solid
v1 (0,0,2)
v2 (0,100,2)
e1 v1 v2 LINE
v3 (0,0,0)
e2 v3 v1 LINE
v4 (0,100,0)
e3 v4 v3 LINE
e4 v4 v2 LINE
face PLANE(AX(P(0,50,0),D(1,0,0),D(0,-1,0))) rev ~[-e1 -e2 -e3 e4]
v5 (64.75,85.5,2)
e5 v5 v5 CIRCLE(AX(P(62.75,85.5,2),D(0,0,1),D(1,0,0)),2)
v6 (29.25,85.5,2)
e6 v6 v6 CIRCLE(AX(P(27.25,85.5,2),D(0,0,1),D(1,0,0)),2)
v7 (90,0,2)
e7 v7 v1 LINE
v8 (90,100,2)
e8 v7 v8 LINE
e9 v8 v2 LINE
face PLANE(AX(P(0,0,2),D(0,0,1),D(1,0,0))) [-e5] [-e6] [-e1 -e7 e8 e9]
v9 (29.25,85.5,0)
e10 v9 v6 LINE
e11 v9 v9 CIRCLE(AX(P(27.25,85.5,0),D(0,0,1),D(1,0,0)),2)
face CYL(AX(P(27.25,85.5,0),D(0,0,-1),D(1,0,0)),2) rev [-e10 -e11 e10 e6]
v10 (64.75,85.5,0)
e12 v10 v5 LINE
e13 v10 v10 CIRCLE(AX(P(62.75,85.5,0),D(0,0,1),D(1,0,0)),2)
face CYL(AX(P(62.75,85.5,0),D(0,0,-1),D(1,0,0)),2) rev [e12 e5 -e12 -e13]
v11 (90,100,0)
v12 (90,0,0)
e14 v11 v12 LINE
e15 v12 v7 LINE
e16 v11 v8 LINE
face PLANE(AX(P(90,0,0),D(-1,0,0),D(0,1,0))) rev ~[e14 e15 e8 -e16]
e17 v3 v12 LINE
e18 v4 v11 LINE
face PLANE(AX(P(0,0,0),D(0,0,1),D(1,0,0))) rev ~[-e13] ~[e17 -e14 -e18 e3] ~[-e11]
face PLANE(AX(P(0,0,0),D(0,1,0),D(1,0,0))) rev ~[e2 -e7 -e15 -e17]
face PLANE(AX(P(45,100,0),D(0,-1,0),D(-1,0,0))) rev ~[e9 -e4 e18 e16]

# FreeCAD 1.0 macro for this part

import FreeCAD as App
import Part
import Sketcher
from FreeCAD import Vector
Q = App.Units.Quantity

doc = App.newDocument("Part")
body = doc.addObject("PartDesign::Body", "Body")

# Sketch on XY plane
sketch1 = body.newObject("Sketcher::SketchObject", "Sketch")
sketch1.AttachmentSupport = (doc.getObject("XY_Plane"), [""])
sketch1.MapMode = "FlatFace"
sketch1.addGeometry([
    Part.LineSegment(Vector(0, 0, 0), Vector(90, 0, 0)),  # 0
    Part.LineSegment(Vector(90, 0, 0), Vector(90, 100, 0)),  # 1
    Part.LineSegment(Vector(90, 100, 0), Vector(0, 100, 0)),  # 2
    Part.LineSegment(Vector(0, 100, 0), Vector(0, 0, 0)),  # 3
    Part.Circle(Vector(27.2, 85.5, 0), Vector(0, 0, 1), 2),  # 4
    Part.Circle(Vector(62.8, 85.5, 0), Vector(0, 0, 1), 2),  # 5
], False)
sketch1.addConstraint([
    Sketcher.Constraint("Coincident", 0, 2, 1, 1),
    Sketcher.Constraint("Coincident", 1, 2, 2, 1),
    Sketcher.Constraint("Coincident", 2, 2, 3, 1),
    Sketcher.Constraint("Coincident", 3, 2, 0, 1),
    Sketcher.Constraint("Horizontal", 0),
    Sketcher.Constraint("Vertical", 1),
    Sketcher.Constraint("Horizontal", 2),
    Sketcher.Constraint("Vertical", 3),
    Sketcher.Constraint("Coincident", 3, 2, -1, 1),
    Sketcher.Constraint("Equal", 4, 5),
    Sketcher.Constraint("Horizontal", 4, 3, 5, 3),
    Sketcher.Constraint("Diameter", 4, Q("4 mm")),
    Sketcher.Constraint("DistanceX", 0, 1, 0, 2, Q("90 mm")),
    Sketcher.Constraint("DistanceY", 1, 1, 1, 2, Q("100 mm")),
    Sketcher.Constraint("DistanceY", 5, 3, 1, 2, Q("14.5 mm")),
    Sketcher.Constraint("DistanceX", 4, 3, 5, 3, Q("35.5 mm")),
    Sketcher.Constraint("DistanceX", -1, 1, 4, 3, Q("27.25 mm")),
])
pad1 = body.newObject("PartDesign::Pad", "Pad")
pad1.Profile = sketch1
pad1.Length = 2

doc.recompute()
